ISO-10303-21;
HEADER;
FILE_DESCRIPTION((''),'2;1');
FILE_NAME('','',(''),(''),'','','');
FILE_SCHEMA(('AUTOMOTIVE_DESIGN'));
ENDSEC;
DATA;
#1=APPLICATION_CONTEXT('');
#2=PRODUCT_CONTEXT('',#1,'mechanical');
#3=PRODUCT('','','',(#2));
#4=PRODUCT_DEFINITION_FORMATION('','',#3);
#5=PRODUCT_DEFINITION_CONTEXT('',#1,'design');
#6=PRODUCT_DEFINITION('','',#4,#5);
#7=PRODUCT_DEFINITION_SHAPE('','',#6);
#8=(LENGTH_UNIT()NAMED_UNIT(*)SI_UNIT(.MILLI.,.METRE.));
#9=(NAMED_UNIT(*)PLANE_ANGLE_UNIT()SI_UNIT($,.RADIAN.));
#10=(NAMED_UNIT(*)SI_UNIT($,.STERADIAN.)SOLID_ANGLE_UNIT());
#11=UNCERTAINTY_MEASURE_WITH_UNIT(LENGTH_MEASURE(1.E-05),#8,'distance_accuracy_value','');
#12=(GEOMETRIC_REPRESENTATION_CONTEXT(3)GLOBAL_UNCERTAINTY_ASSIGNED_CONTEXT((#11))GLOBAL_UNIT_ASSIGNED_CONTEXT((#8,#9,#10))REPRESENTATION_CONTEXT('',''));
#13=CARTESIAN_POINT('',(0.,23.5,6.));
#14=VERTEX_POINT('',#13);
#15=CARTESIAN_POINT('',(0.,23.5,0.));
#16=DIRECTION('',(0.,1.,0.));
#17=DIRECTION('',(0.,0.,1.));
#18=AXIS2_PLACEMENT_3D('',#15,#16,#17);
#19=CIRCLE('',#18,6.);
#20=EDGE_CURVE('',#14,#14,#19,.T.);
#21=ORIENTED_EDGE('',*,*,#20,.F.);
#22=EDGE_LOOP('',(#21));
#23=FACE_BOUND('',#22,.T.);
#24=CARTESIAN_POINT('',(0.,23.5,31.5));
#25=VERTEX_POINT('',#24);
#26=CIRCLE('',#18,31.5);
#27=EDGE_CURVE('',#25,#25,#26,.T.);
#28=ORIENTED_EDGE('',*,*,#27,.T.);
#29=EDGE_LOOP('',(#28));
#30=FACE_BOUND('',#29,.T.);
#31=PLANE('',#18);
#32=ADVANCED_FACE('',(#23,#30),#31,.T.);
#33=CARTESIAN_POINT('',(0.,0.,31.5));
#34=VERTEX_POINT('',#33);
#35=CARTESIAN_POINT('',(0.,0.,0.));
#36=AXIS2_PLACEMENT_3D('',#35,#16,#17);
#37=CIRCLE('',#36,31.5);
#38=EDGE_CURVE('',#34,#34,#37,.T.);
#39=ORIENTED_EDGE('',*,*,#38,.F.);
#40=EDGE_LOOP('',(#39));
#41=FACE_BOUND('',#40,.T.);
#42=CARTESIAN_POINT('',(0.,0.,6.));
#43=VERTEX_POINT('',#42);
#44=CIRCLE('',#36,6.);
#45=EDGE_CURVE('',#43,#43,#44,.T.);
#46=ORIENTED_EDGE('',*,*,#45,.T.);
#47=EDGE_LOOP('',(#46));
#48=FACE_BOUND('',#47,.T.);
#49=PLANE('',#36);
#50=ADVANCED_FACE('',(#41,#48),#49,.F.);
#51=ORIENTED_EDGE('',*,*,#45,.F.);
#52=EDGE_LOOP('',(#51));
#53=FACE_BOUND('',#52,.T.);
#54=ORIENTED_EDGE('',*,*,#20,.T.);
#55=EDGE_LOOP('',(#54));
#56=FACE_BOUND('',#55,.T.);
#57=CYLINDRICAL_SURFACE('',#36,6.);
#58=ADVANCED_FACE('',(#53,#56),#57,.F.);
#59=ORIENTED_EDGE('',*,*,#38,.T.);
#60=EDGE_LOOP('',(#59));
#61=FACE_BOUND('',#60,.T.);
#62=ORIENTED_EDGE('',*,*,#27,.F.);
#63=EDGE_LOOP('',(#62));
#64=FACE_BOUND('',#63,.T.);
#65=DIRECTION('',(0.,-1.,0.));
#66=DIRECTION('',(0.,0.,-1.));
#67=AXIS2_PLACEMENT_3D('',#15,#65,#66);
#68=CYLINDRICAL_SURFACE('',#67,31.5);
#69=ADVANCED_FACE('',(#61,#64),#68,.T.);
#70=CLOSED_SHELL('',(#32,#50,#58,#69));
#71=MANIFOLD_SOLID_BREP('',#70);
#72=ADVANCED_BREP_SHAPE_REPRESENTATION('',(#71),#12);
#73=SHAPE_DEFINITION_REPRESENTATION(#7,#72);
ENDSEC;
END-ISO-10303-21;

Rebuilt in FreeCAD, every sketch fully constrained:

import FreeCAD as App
import Part
import Sketcher
from FreeCAD import Vector

doc = App.newDocument("Part")
body = doc.addObject("PartDesign::Body", "Body")

# Sketch on XZ plane
sketch1 = doc.addObject("Sketcher::SketchObject", "Sketch")
body.addObject(sketch1)
sketch1.AttachmentSupport = (doc.XZ_Plane, [""])
sketch1.MapMode = "FlatFace"
sketch1.addGeometry(Part.Circle(Vector(0, 0, 0), Vector(0, 0, 1), 32), False)
sketch1.addConstraint([
    Sketcher.Constraint("Coincident", 0, 3, -1, 1),
    Sketcher.Constraint("Diameter", 0, 63.0),
])
pad1 = doc.addObject("PartDesign::Pad", "Pad")
body.addObject(pad1)
pad1.Profile = sketch1
pad1.Length = 23.5
pad1.Reversed = True

# Sketch on XZ plane
sketch2 = doc.addObject("Sketcher::SketchObject", "Sketch001")
body.addObject(sketch2)
sketch2.AttachmentSupport = (doc.XZ_Plane, [""])
sketch2.MapMode = "FlatFace"
sketch2.AttachmentOffset = App.Placement(Vector(0, 0, -23.5), App.Rotation())
sketch2.addGeometry(Part.Circle(Vector(0, 0, 0), Vector(0, 0, 1), 6), False)
sketch2.addConstraint([
    Sketcher.Constraint("Coincident", 0, 3, -1, 1),
    Sketcher.Constraint("Diameter", 0, 12.0),
])
pocket1 = doc.addObject("PartDesign::Pocket", "Pocket")
body.addObject(pocket1)
pocket1.Profile = sketch2
pocket1.Length = 23.5
pocket1.Reversed = True

doc.recompute()
